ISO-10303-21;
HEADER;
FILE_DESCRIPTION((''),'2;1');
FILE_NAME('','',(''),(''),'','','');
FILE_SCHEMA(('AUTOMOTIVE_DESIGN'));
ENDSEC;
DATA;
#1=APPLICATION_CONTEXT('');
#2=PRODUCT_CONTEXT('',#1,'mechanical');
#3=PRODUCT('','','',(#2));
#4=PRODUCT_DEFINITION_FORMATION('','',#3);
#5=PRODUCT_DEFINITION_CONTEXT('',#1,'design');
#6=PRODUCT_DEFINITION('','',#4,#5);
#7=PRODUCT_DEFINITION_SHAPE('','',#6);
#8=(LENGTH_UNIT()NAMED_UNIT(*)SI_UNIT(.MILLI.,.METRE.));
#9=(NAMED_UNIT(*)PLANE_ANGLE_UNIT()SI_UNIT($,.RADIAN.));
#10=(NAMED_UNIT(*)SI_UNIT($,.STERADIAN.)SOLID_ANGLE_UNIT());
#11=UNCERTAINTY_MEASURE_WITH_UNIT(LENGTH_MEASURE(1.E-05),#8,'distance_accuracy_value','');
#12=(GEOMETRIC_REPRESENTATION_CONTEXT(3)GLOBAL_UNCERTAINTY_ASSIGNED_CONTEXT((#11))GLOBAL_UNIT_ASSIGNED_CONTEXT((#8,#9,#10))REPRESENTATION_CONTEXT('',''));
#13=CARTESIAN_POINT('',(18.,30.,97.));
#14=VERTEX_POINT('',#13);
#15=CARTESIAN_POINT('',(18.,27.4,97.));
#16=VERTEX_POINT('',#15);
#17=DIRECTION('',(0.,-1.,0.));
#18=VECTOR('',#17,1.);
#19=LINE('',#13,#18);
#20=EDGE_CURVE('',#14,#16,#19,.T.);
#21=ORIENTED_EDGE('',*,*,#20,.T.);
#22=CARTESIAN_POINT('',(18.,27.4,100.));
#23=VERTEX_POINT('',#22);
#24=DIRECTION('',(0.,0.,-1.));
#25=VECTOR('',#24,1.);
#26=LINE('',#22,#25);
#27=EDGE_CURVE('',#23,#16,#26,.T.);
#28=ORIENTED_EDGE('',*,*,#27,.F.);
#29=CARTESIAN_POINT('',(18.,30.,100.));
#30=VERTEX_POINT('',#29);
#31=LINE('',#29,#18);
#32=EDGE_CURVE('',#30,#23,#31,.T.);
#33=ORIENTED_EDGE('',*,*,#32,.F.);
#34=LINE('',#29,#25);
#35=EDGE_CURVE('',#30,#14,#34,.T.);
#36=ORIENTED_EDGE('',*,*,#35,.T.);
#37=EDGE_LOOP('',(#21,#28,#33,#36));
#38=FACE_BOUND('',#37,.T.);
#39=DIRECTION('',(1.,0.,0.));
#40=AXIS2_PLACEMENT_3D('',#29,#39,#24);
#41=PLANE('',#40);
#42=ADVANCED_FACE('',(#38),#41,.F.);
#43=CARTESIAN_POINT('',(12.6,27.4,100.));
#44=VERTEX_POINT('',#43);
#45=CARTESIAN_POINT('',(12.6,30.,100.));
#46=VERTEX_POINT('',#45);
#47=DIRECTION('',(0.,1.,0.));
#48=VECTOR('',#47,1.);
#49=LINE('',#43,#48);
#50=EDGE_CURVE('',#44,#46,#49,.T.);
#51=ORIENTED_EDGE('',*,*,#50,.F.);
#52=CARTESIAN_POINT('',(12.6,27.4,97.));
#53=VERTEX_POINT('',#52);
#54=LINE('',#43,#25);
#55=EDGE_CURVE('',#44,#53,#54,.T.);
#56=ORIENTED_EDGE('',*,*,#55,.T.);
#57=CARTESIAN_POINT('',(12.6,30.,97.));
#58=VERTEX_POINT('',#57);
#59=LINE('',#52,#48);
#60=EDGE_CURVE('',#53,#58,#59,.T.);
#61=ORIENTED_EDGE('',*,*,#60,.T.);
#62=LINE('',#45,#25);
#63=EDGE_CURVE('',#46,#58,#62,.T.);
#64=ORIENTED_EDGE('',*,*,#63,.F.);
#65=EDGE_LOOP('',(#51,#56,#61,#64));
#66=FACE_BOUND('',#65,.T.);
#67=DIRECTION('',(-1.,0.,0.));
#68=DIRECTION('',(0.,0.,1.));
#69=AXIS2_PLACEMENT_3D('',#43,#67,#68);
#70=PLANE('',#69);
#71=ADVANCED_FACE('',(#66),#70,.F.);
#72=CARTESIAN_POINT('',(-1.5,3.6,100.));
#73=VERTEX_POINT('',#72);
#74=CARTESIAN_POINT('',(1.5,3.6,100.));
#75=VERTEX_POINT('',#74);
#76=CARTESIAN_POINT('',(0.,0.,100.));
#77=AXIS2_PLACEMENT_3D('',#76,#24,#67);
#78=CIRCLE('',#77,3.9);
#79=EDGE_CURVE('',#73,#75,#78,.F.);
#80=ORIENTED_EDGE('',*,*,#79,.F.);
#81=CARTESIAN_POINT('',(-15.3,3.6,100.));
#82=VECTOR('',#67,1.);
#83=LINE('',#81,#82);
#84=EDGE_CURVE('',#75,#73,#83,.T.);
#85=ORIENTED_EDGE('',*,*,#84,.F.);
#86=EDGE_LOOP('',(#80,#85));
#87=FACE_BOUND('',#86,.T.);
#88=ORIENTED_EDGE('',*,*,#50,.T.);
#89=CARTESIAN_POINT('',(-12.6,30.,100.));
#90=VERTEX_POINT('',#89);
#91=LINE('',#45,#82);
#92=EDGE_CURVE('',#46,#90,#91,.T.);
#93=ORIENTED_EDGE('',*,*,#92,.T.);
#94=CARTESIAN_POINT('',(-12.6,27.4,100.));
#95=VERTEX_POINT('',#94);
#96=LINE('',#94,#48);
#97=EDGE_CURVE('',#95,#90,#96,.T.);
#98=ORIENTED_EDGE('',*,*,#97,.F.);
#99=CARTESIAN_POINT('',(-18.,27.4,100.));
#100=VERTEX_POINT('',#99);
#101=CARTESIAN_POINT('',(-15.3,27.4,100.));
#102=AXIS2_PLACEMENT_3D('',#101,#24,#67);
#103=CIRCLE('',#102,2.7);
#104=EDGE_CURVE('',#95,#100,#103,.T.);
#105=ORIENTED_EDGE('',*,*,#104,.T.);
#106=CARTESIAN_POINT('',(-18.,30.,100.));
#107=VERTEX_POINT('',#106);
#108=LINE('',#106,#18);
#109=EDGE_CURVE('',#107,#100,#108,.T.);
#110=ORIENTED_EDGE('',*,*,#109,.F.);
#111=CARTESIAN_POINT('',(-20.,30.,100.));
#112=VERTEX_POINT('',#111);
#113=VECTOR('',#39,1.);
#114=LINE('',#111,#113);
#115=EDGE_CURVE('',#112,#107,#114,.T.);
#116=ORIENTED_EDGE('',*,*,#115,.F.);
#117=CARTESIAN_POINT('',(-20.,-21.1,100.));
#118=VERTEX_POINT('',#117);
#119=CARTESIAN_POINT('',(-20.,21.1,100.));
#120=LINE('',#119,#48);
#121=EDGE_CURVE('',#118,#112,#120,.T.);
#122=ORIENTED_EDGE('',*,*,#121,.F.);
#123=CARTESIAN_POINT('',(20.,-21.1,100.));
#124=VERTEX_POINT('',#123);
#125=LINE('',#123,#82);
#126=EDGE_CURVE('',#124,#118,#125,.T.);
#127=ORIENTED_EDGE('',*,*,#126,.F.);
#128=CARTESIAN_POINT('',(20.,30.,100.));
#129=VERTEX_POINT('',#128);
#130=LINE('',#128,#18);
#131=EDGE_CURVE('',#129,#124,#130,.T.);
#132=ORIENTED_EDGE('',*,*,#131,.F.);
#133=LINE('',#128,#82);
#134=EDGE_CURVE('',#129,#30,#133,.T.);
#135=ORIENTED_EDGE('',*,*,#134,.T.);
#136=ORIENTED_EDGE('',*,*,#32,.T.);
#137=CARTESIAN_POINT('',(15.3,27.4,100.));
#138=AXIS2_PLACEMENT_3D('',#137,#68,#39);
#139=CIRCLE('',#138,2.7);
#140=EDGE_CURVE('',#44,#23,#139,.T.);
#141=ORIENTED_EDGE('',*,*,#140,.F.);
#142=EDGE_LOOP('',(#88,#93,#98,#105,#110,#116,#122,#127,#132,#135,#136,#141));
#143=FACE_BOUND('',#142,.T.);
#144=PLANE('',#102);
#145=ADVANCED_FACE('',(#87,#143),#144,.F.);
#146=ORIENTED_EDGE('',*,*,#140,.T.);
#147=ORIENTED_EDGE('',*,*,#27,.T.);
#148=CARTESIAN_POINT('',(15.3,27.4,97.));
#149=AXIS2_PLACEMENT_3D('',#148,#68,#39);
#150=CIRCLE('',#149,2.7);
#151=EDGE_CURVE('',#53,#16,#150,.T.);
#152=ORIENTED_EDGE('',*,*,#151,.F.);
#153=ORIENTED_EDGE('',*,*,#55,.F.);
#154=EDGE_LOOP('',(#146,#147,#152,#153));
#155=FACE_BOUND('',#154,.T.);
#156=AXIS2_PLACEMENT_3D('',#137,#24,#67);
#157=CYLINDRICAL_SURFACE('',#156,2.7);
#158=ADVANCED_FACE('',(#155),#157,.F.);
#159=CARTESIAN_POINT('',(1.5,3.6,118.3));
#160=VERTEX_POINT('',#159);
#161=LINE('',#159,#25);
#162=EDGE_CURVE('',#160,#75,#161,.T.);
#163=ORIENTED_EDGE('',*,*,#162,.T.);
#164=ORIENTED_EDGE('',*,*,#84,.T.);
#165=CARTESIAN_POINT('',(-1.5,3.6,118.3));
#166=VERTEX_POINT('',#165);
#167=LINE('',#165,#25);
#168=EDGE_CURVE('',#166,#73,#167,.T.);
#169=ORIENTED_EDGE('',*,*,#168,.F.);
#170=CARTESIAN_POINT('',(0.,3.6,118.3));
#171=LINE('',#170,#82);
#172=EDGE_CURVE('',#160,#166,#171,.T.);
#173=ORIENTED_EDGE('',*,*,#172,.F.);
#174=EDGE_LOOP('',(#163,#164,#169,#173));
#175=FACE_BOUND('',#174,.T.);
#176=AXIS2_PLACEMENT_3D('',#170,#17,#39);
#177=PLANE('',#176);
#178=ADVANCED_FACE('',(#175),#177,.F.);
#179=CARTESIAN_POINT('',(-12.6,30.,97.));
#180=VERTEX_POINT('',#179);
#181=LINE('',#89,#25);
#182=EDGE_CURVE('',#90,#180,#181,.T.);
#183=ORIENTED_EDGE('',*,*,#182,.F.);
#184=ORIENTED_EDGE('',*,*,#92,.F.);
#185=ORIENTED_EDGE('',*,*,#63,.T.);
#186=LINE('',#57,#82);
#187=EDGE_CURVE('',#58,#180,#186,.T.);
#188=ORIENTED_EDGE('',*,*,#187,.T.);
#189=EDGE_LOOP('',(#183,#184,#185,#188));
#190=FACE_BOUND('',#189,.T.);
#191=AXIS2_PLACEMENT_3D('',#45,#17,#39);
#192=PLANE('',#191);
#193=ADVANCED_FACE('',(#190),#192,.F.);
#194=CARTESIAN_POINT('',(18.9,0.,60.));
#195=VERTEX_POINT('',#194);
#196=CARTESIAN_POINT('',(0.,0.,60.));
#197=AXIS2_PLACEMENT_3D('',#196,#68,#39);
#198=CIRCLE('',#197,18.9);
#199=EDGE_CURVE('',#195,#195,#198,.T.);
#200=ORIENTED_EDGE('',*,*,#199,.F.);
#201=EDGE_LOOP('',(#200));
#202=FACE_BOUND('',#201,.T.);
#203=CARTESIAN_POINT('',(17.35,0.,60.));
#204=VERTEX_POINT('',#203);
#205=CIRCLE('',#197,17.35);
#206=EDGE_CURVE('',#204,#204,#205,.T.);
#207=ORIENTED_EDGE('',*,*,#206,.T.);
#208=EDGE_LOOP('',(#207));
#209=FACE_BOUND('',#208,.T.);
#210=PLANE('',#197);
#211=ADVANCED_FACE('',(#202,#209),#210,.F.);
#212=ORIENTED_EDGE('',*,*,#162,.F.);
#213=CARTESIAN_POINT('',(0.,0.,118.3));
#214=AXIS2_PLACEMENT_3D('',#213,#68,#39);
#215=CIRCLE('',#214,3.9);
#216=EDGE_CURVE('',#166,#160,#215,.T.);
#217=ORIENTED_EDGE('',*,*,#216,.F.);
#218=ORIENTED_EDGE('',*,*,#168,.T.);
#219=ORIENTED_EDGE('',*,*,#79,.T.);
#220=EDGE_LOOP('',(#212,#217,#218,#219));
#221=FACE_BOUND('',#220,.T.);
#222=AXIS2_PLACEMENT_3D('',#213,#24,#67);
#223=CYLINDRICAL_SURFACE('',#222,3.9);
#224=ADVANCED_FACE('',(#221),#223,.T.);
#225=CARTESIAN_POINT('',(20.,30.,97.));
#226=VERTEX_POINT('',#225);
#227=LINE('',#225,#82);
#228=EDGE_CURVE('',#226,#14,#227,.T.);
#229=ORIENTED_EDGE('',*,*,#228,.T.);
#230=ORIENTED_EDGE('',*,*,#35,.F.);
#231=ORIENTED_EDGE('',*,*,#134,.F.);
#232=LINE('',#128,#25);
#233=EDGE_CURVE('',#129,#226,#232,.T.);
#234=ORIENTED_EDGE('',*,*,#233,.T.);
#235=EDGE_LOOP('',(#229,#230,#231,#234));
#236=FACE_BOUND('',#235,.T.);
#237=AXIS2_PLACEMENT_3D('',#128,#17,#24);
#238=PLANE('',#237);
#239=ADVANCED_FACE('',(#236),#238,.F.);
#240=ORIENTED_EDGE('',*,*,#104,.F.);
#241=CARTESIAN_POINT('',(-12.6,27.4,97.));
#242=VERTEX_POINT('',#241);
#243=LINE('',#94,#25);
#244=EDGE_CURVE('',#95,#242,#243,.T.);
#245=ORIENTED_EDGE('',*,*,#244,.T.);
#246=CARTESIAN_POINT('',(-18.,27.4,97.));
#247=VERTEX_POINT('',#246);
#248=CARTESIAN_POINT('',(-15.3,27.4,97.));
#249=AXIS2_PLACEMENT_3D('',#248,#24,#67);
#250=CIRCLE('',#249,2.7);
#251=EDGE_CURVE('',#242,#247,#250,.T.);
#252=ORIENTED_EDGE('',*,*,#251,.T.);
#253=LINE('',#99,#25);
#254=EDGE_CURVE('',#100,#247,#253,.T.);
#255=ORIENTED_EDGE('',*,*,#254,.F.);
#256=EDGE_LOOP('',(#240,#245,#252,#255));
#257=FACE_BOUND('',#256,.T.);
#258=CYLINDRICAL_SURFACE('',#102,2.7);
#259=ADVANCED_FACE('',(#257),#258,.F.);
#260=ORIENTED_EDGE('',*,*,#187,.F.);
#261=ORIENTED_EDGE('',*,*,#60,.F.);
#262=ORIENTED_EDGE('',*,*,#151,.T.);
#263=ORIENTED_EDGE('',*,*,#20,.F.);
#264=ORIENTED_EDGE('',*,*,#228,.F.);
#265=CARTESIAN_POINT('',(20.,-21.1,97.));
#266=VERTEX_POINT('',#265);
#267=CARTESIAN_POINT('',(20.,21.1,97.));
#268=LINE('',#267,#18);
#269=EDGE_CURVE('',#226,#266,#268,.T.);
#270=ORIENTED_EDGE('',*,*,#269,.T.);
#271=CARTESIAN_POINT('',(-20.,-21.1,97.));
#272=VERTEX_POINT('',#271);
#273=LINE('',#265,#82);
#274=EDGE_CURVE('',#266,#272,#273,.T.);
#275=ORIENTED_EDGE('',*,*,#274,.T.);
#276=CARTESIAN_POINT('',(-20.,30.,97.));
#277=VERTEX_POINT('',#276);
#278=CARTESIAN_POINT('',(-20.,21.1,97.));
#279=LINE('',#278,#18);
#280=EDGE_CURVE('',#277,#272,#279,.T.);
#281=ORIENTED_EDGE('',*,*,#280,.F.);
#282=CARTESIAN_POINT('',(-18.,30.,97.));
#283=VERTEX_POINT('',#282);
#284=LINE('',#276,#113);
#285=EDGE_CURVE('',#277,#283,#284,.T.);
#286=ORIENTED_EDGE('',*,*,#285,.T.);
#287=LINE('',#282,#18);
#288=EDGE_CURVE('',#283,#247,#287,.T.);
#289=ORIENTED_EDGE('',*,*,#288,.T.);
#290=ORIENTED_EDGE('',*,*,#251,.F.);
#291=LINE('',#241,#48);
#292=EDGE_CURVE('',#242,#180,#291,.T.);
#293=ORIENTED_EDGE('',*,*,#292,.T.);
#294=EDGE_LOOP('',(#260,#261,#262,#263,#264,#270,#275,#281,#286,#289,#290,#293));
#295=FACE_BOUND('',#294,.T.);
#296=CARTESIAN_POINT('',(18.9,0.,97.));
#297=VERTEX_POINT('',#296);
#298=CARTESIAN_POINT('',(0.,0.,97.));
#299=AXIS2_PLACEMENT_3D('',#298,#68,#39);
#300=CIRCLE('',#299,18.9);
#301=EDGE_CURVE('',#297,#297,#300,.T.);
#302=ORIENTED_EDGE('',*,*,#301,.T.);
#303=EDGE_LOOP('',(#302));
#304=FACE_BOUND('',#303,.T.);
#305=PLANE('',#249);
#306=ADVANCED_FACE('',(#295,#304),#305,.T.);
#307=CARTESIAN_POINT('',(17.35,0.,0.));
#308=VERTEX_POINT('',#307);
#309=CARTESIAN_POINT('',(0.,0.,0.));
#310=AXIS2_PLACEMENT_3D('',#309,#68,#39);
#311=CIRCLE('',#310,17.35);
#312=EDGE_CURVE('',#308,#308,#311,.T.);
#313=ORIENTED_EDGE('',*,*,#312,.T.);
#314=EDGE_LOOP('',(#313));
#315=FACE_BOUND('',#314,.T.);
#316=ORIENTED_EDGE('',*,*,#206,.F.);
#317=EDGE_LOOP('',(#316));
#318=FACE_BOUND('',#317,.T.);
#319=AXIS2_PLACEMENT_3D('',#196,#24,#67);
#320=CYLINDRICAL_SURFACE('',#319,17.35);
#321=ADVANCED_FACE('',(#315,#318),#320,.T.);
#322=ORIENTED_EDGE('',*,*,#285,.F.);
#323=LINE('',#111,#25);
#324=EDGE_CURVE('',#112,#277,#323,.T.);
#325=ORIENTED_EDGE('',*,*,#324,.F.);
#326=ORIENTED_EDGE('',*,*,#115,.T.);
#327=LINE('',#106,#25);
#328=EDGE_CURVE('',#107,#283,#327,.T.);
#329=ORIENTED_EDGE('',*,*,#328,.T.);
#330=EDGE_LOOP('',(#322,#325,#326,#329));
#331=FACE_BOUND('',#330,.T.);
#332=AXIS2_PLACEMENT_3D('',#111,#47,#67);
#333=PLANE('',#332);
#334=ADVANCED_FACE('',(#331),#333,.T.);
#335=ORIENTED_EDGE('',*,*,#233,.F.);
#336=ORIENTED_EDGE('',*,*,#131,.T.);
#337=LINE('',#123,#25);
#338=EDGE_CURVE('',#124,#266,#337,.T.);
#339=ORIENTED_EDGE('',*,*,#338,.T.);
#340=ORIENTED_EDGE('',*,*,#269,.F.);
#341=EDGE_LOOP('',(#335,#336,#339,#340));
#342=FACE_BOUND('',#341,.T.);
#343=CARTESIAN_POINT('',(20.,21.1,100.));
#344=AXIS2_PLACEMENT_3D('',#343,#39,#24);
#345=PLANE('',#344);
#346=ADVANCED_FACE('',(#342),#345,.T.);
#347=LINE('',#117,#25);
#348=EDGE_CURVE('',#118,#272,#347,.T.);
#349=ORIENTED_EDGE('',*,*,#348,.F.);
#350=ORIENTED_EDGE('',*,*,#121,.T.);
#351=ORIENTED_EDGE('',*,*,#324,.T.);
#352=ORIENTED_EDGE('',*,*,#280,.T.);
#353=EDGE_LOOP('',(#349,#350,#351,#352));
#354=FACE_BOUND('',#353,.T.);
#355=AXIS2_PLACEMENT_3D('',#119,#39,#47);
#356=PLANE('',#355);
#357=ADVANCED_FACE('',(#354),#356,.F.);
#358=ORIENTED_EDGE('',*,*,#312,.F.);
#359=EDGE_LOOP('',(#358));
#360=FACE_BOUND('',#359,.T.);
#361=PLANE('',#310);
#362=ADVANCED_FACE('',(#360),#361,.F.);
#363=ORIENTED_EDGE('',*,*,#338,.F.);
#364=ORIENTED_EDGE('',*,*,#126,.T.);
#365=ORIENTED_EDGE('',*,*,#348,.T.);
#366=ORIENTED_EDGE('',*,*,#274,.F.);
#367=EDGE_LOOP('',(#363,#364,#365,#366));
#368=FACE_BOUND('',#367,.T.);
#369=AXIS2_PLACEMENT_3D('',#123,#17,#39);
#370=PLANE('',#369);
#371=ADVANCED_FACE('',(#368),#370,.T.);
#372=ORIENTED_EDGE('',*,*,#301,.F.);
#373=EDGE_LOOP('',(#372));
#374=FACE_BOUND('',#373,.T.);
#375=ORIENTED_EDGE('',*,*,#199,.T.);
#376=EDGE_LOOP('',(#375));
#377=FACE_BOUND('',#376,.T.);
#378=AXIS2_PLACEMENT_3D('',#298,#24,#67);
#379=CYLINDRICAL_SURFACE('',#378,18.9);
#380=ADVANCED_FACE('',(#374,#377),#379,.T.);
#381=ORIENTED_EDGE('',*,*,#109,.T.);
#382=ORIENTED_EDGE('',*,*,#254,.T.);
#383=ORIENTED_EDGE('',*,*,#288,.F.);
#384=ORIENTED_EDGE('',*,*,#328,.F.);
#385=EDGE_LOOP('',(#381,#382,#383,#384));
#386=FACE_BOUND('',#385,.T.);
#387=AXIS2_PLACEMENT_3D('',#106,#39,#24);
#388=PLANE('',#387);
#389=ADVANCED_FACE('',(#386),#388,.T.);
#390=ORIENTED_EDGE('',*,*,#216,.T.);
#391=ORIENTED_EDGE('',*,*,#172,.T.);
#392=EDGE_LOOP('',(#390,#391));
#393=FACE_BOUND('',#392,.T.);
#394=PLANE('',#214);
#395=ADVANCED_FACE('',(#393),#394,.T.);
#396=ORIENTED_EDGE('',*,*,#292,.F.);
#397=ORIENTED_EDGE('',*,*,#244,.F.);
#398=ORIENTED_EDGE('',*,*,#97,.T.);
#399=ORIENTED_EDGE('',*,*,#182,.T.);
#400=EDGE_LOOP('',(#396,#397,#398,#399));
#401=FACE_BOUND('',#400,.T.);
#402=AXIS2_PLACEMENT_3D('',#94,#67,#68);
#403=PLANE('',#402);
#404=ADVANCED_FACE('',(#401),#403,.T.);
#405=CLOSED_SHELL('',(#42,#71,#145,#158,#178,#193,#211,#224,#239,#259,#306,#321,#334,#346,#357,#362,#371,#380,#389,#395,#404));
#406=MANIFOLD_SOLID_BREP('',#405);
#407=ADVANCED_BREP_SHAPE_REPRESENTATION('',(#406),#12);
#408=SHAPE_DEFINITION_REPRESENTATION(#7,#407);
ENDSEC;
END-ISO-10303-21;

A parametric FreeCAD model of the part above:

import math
import FreeCAD as App
import Part
import Sketcher

V = App.Vector
Q = App.Units.Quantity

doc = App.newDocument("Part")
body = doc.addObject("PartDesign::Body", "Body")

sketch1 = body.newObject("Sketcher::SketchObject", "Sketch")
sketch1.AttachmentSupport = (doc.getObject("XY_Plane"), [""])
sketch1.MapMode = "FlatFace"
sketch1.addGeometry(Part.Circle(V(0, 0, 0), V(0, 0, 1), 17), False)
sketch1.addConstraint(Sketcher.Constraint("Coincident", 0, 3, -1, 1))
sketch1.addConstraint(Sketcher.Constraint("Diameter", 0, Q("34.7 mm")))
pad1 = body.newObject("PartDesign::Pad", "Pad")
pad1.Profile = sketch1
pad1.Length = 60

sketch2 = body.newObject("Sketcher::SketchObject", "Sketch001")
sketch2.AttachmentSupport = (doc.getObject("XY_Plane"), [""])
sketch2.MapMode = "FlatFace"
sketch2.AttachmentOffset = App.Placement(V(0, 0, 60), App.Rotation())
sketch2.addGeometry(Part.Circle(V(0, 0, 0), V(0, 0, 1), 19), False)
sketch2.addConstraint(Sketcher.Constraint("Coincident", 0, 3, -1, 1))
sketch2.addConstraint(Sketcher.Constraint("Diameter", 0, Q("37.8 mm")))
pad2 = body.newObject("PartDesign::Pad", "Pad001")
pad2.Profile = sketch2
pad2.Length = 37

sketch3 = body.newObject("Sketcher::SketchObject", "Sketch002")
sketch3.AttachmentSupport = (doc.getObject("XY_Plane"), [""])
sketch3.MapMode = "FlatFace"
sketch3.AttachmentOffset = App.Placement(V(0, 0, 97), App.Rotation())
sketch3.addGeometry(Part.LineSegment(V(-20, -21.1, 0), V(20, -21.1, 0)), False)
sketch3.addGeometry(Part.LineSegment(V(20, -21.1, 0), V(20, 30, 0)), False)
sketch3.addGeometry(Part.LineSegment(V(20, 30, 0), V(18, 30, 0)), False)
sketch3.addGeometry(Part.LineSegment(V(18, 30, 0), V(18, 27.4, 0)), False)
sketch3.addGeometry(Part.ArcOfCircle(Part.Circle(V(15.3, 27.4, 0), V(0, 0, 1), 2.7), math.radians(180), math.radians(360)), False)
sketch3.addGeometry(Part.LineSegment(V(12.6, 27.4, 0), V(12.6, 30, 0)), False)
sketch3.addGeometry(Part.LineSegment(V(12.6, 30, 0), V(-12.6, 30, 0)), False)
sketch3.addGeometry(Part.LineSegment(V(-12.6, 30, 0), V(-12.6, 27.4, 0)), False)
sketch3.addGeometry(Part.ArcOfCircle(Part.Circle(V(-15.3, 27.4, 0), V(0, 0, 1), 2.7), math.radians(180), math.radians(360)), False)
sketch3.addGeometry(Part.LineSegment(V(-18, 27.4, 0), V(-18, 30, 0)), False)
sketch3.addGeometry(Part.LineSegment(V(-18, 30, 0), V(-20, 30, 0)), False)
sketch3.addGeometry(Part.LineSegment(V(-20, 30, 0), V(-20, -21.1, 0)), False)
sketch3.addConstraint(Sketcher.Constraint("Coincident", 0, 2, 1, 1))
sketch3.addConstraint(Sketcher.Constraint("Coincident", 1, 2, 2, 1))
sketch3.addConstraint(Sketcher.Constraint("Coincident", 2, 2, 3, 1))
sketch3.addConstraint(Sketcher.Constraint("Tangent", 3, 2, 4, 2))
sketch3.addConstraint(Sketcher.Constraint("Tangent", 4, 1, 5, 1))
sketch3.addConstraint(Sketcher.Constraint("Coincident", 5, 2, 6, 1))
sketch3.addConstraint(Sketcher.Constraint("Coincident", 6, 2, 7, 1))
sketch3.addConstraint(Sketcher.Constraint("Tangent", 7, 2, 8, 2))
sketch3.addConstraint(Sketcher.Constraint("Tangent", 8, 1, 9, 1))
sketch3.addConstraint(Sketcher.Constraint("Coincident", 9, 2, 10, 1))
sketch3.addConstraint(Sketcher.Constraint("Coincident", 10, 2, 11, 1))
sketch3.addConstraint(Sketcher.Constraint("Coincident", 11, 2, 0, 1))
sketch3.addConstraint(Sketcher.Constraint("Horizontal", 0))
sketch3.addConstraint(Sketcher.Constraint("Vertical", 1))
sketch3.addConstraint(Sketcher.Constraint("Horizontal", 2))
sketch3.addConstraint(Sketcher.Constraint("Vertical", 3))
sketch3.addConstraint(Sketcher.Constraint("Vertical", 5))
sketch3.addConstraint(Sketcher.Constraint("Horizontal", 6))
sketch3.addConstraint(Sketcher.Constraint("Vertical", 7))
sketch3.addConstraint(Sketcher.Constraint("Vertical", 9))
sketch3.addConstraint(Sketcher.Constraint("Horizontal", 10))
sketch3.addConstraint(Sketcher.Constraint("Vertical", 11))
sketch3.addConstraint(Sketcher.Constraint("Equal", 4, 8))
sketch3.addConstraint(Sketcher.Constraint("Symmetric", 4, 3, 8, 3, -2))
sketch3.addConstraint(Sketcher.Constraint("Symmetric", 1, 2, 10, 2, -2))
sketch3.addConstraint(Sketcher.Constraint("Horizontal", 2, 2, 5, 2))
sketch3.addConstraint(Sketcher.Constraint("Radius", 4, Q("2.7 mm")))
sketch3.addConstraint(Sketcher.Constraint("DistanceX", 0, 1, 0, 2, Q("40 mm")))
sketch3.addConstraint(Sketcher.Constraint("DistanceX", 2, 2, 2, 1, Q("2 mm")))
sketch3.addConstraint(Sketcher.Constraint("DistanceY", 1, 1, 1, 2, Q("51.1 mm")))
sketch3.addConstraint(Sketcher.Constraint("DistanceY", 3, 2, 3, 1, Q("2.6 mm")))
sketch3.addConstraint(Sketcher.Constraint("DistanceY", -1, 1, 1, 2, Q("30 mm")))
pad3 = body.newObject("PartDesign::Pad", "Pad002")
pad3.Profile = sketch3
pad3.Length = 3

sketch4 = body.newObject("Sketcher::SketchObject", "Sketch003")
sketch4.AttachmentSupport = (doc.getObject("XY_Plane"), [""])
sketch4.MapMode = "FlatFace"
sketch4.AttachmentOffset = App.Placement(V(0, 0, 97), App.Rotation())
sketch4.addGeometry(Part.LineSegment(V(1.5, 3.6, 0), V(-1.5, 3.6, 0)), False)
sketch4.addGeometry(Part.ArcOfCircle(Part.Circle(V(0, 0, 0), V(0, 0, 1), 3.9), math.radians(113), math.radians(427)), False)
sketch4.addConstraint(Sketcher.Constraint("Coincident", 0, 1, 1, 2))
sketch4.addConstraint(Sketcher.Constraint("Coincident", 1, 1, 0, 2))
sketch4.addConstraint(Sketcher.Constraint("Horizontal", 0))
sketch4.addConstraint(Sketcher.Constraint("Coincident", 1, 3, -1, 1))
sketch4.addConstraint(Sketcher.Constraint("Radius", 1, Q("3.9 mm")))
sketch4.addConstraint(Sketcher.Constraint("DistanceX", 0, 2, 0, 1, Q("3 mm")))
pad4 = body.newObject("PartDesign::Pad", "Pad003")
pad4.Profile = sketch4
pad4.Length = 21.3

doc.recompute()
